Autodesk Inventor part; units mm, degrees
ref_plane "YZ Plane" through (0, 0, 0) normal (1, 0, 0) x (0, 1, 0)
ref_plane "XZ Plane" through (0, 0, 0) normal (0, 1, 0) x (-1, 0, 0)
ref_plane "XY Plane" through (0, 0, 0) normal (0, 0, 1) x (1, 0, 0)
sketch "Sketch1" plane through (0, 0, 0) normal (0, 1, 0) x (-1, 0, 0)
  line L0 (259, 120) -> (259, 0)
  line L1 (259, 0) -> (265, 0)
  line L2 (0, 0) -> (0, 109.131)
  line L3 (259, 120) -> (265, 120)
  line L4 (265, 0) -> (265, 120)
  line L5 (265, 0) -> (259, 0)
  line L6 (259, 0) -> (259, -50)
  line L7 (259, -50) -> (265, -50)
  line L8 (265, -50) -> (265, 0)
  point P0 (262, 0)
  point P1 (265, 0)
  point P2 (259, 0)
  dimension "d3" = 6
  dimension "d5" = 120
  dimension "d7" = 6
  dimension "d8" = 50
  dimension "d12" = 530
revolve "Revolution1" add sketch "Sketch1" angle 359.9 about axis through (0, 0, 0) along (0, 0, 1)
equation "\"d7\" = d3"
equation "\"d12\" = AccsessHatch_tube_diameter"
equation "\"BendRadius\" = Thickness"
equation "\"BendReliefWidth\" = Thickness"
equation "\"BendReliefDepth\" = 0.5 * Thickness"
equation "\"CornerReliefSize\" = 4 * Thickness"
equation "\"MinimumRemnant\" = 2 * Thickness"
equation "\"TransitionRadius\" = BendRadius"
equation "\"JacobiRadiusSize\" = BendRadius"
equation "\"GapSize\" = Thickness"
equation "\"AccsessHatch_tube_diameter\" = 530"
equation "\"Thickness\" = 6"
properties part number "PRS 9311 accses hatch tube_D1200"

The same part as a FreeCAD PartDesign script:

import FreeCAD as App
import Part
import Sketcher

V = App.Vector

doc = App.newDocument("Part")
body = doc.addObject("PartDesign::Body", "Body")

# Sketch on XZ plane
sketch1 = body.newObject("Sketcher::SketchObject", "Sketch")
sketch1.AttachmentSupport = (doc.getObject("XZ_Plane"), [""])
sketch1.MapMode = "FlatFace"
sketch1.addGeometry(Part.LineSegment(V(-265, 120, 0), V(-259, 120, 0)), False)
sketch1.addGeometry(Part.LineSegment(V(-259, 120, 0), V(-259, -50, 0)), False)
sketch1.addGeometry(Part.LineSegment(V(-259, -50, 0), V(-265, -50, 0)), False)
sketch1.addGeometry(Part.LineSegment(V(-265, -50, 0), V(-265, 120, 0)), False)
sketch1.addConstraint(Sketcher.Constraint("Coincident", 0, 2, 1, 1))
sketch1.addConstraint(Sketcher.Constraint("Coincident", 1, 2, 2, 1))
sketch1.addConstraint(Sketcher.Constraint("Coincident", 2, 2, 3, 1))
sketch1.addConstraint(Sketcher.Constraint("Coincident", 3, 2, 0, 1))
sketch1.addConstraint(Sketcher.Constraint("Horizontal", 0))
sketch1.addConstraint(Sketcher.Constraint("Vertical", 1))
sketch1.addConstraint(Sketcher.Constraint("Horizontal", 2))
sketch1.addConstraint(Sketcher.Constraint("Vertical", 3))
sketch1.addConstraint(Sketcher.Constraint("DistanceX", 0, 1, 0, 2, 6.0))
sketch1.addConstraint(Sketcher.Constraint("DistanceY", -1, 1, 0, 2, 120.0))
sketch1.addConstraint(Sketcher.Constraint("DistanceY", 1, 2, -1, 1, 50.0))
sketch1.addConstraint(Sketcher.Constraint("DistanceX", 0, 2, -1, 1, 259.0))
revolution = body.newObject("PartDesign::Revolution", "Revolution")
revolution.Profile = sketch1
revolution.ReferenceAxis = (sketch1, ["V_Axis"])
revolution.Angle = 359.9

doc.recompute()
